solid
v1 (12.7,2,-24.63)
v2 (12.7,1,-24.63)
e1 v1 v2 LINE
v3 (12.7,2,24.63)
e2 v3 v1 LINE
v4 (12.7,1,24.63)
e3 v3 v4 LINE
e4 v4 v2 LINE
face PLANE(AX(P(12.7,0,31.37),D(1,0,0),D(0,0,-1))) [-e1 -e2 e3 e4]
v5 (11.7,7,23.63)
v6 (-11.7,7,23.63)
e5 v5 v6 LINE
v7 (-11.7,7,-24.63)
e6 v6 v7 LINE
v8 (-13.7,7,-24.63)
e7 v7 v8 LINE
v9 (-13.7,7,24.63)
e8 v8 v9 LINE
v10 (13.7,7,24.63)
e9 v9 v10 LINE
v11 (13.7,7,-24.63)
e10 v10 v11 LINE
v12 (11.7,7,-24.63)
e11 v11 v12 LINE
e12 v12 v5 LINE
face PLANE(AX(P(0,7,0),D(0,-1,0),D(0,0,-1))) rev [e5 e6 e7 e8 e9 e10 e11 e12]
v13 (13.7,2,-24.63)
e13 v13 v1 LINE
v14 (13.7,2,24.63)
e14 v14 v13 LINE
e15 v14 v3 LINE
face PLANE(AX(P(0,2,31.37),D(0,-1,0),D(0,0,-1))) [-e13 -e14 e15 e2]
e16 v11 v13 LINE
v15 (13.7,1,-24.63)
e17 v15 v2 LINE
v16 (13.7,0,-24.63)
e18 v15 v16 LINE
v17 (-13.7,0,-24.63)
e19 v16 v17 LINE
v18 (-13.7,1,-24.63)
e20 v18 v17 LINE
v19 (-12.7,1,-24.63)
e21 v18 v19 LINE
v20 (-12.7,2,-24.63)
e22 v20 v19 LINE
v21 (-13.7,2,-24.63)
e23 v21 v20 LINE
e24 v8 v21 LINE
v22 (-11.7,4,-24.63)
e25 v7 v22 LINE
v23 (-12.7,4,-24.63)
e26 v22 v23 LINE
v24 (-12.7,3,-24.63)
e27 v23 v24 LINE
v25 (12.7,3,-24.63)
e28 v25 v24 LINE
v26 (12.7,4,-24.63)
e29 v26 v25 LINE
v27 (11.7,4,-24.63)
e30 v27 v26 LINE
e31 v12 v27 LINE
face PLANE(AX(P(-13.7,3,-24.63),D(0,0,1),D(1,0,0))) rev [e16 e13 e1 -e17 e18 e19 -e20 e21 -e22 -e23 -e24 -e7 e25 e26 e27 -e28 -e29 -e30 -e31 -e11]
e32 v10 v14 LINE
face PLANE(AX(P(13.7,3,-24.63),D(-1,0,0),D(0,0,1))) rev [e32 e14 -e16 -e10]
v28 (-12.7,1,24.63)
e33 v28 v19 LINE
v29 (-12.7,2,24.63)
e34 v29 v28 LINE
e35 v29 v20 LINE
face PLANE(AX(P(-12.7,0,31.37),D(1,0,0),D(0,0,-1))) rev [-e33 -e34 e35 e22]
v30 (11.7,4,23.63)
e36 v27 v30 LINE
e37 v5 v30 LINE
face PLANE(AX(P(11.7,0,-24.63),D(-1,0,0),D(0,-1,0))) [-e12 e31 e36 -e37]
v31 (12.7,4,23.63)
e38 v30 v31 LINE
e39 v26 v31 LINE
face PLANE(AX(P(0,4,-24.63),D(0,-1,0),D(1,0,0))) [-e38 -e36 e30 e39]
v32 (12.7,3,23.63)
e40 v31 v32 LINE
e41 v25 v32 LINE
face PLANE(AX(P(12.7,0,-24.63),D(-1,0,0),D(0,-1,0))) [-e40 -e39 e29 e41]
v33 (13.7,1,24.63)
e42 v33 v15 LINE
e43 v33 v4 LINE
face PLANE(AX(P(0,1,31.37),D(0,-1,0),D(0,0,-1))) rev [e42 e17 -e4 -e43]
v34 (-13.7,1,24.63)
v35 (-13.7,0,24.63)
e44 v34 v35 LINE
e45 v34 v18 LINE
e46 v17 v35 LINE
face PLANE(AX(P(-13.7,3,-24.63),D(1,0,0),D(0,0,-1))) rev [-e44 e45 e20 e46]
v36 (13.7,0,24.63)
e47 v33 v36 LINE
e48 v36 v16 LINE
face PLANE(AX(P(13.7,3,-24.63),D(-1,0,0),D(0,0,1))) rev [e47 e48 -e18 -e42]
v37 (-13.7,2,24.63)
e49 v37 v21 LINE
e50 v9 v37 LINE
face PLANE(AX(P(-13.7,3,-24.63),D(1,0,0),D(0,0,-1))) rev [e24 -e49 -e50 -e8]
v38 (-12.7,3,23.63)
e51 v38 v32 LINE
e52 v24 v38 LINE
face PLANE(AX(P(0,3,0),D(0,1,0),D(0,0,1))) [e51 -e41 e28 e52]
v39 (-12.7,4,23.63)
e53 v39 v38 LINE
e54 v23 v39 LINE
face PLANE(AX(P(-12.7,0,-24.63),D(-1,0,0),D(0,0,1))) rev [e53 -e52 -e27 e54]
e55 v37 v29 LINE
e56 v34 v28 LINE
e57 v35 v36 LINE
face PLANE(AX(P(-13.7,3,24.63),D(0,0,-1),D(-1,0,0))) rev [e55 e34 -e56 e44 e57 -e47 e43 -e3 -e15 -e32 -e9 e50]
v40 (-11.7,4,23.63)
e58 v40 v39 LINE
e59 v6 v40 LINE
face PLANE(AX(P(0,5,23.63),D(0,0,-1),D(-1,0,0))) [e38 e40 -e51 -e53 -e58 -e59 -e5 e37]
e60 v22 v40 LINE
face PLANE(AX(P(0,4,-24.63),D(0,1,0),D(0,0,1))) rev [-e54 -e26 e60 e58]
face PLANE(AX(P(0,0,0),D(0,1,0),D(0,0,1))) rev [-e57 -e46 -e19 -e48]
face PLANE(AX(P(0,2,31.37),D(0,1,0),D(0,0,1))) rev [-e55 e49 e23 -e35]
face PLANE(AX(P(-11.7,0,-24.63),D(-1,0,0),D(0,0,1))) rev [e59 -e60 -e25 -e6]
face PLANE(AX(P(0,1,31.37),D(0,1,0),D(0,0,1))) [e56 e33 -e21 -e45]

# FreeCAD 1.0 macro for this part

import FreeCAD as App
import Part
import Sketcher
from FreeCAD import Vector


def add_polygon(sketch, points):
    """Adds a closed chain of lines whose ends are joined by coincident constraints."""
    first, n = sketch.GeometryCount, len(points)
    for a, b in zip(points, points[1:] + points[:1]):
        sketch.addGeometry(Part.LineSegment(App.Vector(*a, 0), App.Vector(*b, 0)), False)
    for i in range(n):
        sketch.addConstraint(Sketcher.Constraint("Coincident", first + i, 2, first + (i + 1) % n, 1))

doc = App.newDocument("Part")
body = doc.addObject("PartDesign::Body", "Body")

# Sketch on XZ plane
sketch1 = doc.addObject("Sketcher::SketchObject", "Sketch")
body.addObject(sketch1)
sketch1.AttachmentSupport = (doc.XZ_Plane, [""])
sketch1.MapMode = "FlatFace"
add_polygon(sketch1, [(-13.7, -24.63), (-13.7, 24.63), (13.7, 24.63), (13.7, -24.63)])  # lines 0-3
sketch1.addConstraint(Sketcher.Constraint("Vertical", 0))
sketch1.addConstraint(Sketcher.Constraint("Horizontal", 1))
sketch1.addConstraint(Sketcher.Constraint("Vertical", 2))
sketch1.addConstraint(Sketcher.Constraint("Horizontal", 3))
sketch1.addConstraint(Sketcher.Constraint("Symmetric", 0, 2, 2, 2, -1, 1))
sketch1.addConstraint(Sketcher.Constraint("DistanceX", 1, 1, 1, 2, 27.4))
sketch1.addConstraint(Sketcher.Constraint("DistanceY", 0, 1, 0, 2, 49.26))
pad1 = doc.addObject("PartDesign::Pad", "Pad")
body.addObject(pad1)
pad1.Profile = sketch1
pad1.Length = 3
pad1.Reversed = True

# Sketch on XY plane
sketch2 = doc.addObject("Sketcher::SketchObject", "Sketch001")
body.addObject(sketch2)
sketch2.AttachmentSupport = (doc.XY_Plane, [""])
sketch2.MapMode = "FlatFace"
sketch2.AttachmentOffset = App.Placement(Vector(0, 0, -24.63), App.Rotation())
add_polygon(sketch2, [(12.7, 2), (13.7, 2), (13.7, 1), (12.7, 1)])  # lines 0-3
add_polygon(sketch2, [(-13.7, 2), (-12.7, 2), (-12.7, 1), (-13.7, 1)])  # lines 4-7
sketch2.addConstraint(Sketcher.Constraint("Horizontal", 0))
sketch2.addConstraint(Sketcher.Constraint("Vertical", 1))
sketch2.addConstraint(Sketcher.Constraint("Horizontal", 2))
sketch2.addConstraint(Sketcher.Constraint("Vertical", 3))
sketch2.addConstraint(Sketcher.Constraint("Horizontal", 4))
sketch2.addConstraint(Sketcher.Constraint("Vertical", 5))
sketch2.addConstraint(Sketcher.Constraint("Horizontal", 6))
sketch2.addConstraint(Sketcher.Constraint("Vertical", 7))
sketch2.addConstraint(Sketcher.Constraint("Symmetric", 3, 2, 4, 2, -2))
sketch2.addConstraint(Sketcher.Constraint("Symmetric", 1, 2, 6, 2, -2))
sketch2.addConstraint(Sketcher.Constraint("Equal", 6, 1))
sketch2.addConstraint(Sketcher.Constraint("DistanceX", 0, 1, 0, 2, 1.0))
sketch2.addConstraint(Sketcher.Constraint("DistanceY", -1, 1, 0, 2, 2.0))
sketch2.addConstraint(Sketcher.Constraint("DistanceX", -1, 1, 0, 2, 13.7))
pocket1 = doc.addObject("PartDesign::Pocket", "Pocket")
body.addObject(pocket1)
pocket1.Profile = sketch2
pocket1.Length = 56
pocket1.Reversed = True

# Sketch on XY plane
sketch3 = doc.addObject("Sketcher::SketchObject", "Sketch002")
body.addObject(sketch3)
sketch3.AttachmentSupport = (doc.XY_Plane, [""])
sketch3.MapMode = "FlatFace"
sketch3.AttachmentOffset = App.Placement(Vector(0, 0, 24.63), App.Rotation())
add_polygon(sketch3, [(-13.7, 5), (-13.7, 3), (-12.7, 3), (-12.7, 4), (-11.7, 4), (-11.7, 5)])  # lines 0-5
add_polygon(sketch3, [(12.7, 4), (12.7, 3), (13.7, 3), (13.7, 5), (11.7, 5), (11.7, 4)])  # lines 6-11
sketch3.addConstraint(Sketcher.Constraint("Vertical", 0))
sketch3.addConstraint(Sketcher.Constraint("Horizontal", 1))
sketch3.addConstraint(Sketcher.Constraint("Vertical", 2))
sketch3.addConstraint(Sketcher.Constraint("Horizontal", 3))
sketch3.addConstraint(Sketcher.Constraint("Vertical", 4))
sketch3.addConstraint(Sketcher.Constraint("Horizontal", 5))
sketch3.addConstraint(Sketcher.Constraint("Vertical", 6))
sketch3.addConstraint(Sketcher.Constraint("Horizontal", 7))
sketch3.addConstraint(Sketcher.Constraint("Vertical", 8))
sketch3.addConstraint(Sketcher.Constraint("Horizontal", 9))
sketch3.addConstraint(Sketcher.Constraint("Vertical", 10))
sketch3.addConstraint(Sketcher.Constraint("Horizontal", 11))
sketch3.addConstraint(Sketcher.Constraint("Symmetric", 1, 2, 6, 2, -2))
sketch3.addConstraint(Sketcher.Constraint("Symmetric", 5, 2, 8, 2, -2))
sketch3.addConstraint(Sketcher.Constraint("Symmetric", 3, 2, 10, 2, -2))
sketch3.addConstraint(Sketcher.Constraint("Equal", 1, 3))
sketch3.addConstraint(Sketcher.Constraint("Equal", 9, 0))
sketch3.addConstraint(Sketcher.Constraint("Equal", 11, 2))
sketch3.addConstraint(Sketcher.Constraint("DistanceX", 1, 1, 1, 2, 1.0))
sketch3.addConstraint(Sketcher.Constraint("DistanceY", -1, 1, 0, 2, 3.0))
sketch3.addConstraint(Sketcher.Constraint("DistanceX", 0, 2, -1, 1, 13.7))
pad2 = doc.addObject("PartDesign::Pad", "Pad001")
body.addObject(pad2)
pad2.Profile = sketch3
pad2.Length = 49.26
pad2.Reversed = True

# Sketch on XZ plane
sketch4 = doc.addObject("Sketcher::SketchObject", "Sketch003")
body.addObject(sketch4)
sketch4.AttachmentSupport = (doc.XZ_Plane, [""])
sketch4.MapMode = "FlatFace"
sketch4.AttachmentOffset = App.Placement(Vector(0, 0, -3), App.Rotation())
add_polygon(sketch4, [(-12.7, 23.63), (-12.7, 24.63), (12.7, 24.63), (12.7, 23.63)])  # lines 0-3
sketch4.addConstraint(Sketcher.Constraint("Vertical", 0))
sketch4.addConstraint(Sketcher.Constraint("Horizontal", 1))
sketch4.addConstraint(Sketcher.Constraint("Vertical", 2))
sketch4.addConstraint(Sketcher.Constraint("Horizontal", 3))
sketch4.addConstraint(Sketcher.Constraint("DistanceY", 0, 1, 0, 2, 1.0))
sketch4.addConstraint(Sketcher.Constraint("DistanceX", 1, 1, 1, 2, 25.4))
sketch4.addConstraint(Sketcher.Constraint("DistanceX", 0, 2, -1, 1, 12.7))
sketch4.addConstraint(Sketcher.Constraint("DistanceY", -1, 1, 0, 2, 24.63))
pad3 = doc.addObject("PartDesign::Pad", "Pad002")
body.addObject(pad3)
pad3.Profile = sketch4
pad3.Length = 2
pad3.Reversed = True

# Sketch on XZ plane
sketch5 = doc.addObject("Sketcher::SketchObject", "Sketch004")
body.addObject(sketch5)
sketch5.AttachmentSupport = (doc.XZ_Plane, [""])
sketch5.MapMode = "FlatFace"
sketch5.AttachmentOffset = App.Placement(Vector(0, 0, -5), App.Rotation())
add_polygon(sketch5, [(-11.7, -24.63), (-13.7, -24.63), (-13.7, 24.63), (13.7, 24.63), (13.7, -24.63), (11.7, -24.63), (11.7, 23.63), (-11.7, 23.63)])  # lines 0-7
sketch5.addConstraint(Sketcher.Constraint("Horizontal", 0))
sketch5.addConstraint(Sketcher.Constraint("Vertical", 1))
sketch5.addConstraint(Sketcher.Constraint("Horizontal", 2))
sketch5.addConstraint(Sketcher.Constraint("Vertical", 3))
sketch5.addConstraint(Sketcher.Constraint("Horizontal", 4))
sketch5.addConstraint(Sketcher.Constraint("Vertical", 5))
sketch5.addConstraint(Sketcher.Constraint("Horizontal", 6))
sketch5.addConstraint(Sketcher.Constraint("Vertical", 7))
sketch5.addConstraint(Sketcher.Constraint("Symmetric", 0, 2, 2, 2, -1, 1))
sketch5.addConstraint(Sketcher.Constraint("Symmetric", 4, 2, 7, 2, -2))
sketch5.addConstraint(Sketcher.Constraint("DistanceX", 0, 2, 0, 1, 2.0))
sketch5.addConstraint(Sketcher.Constraint("DistanceX", 2, 1, 2, 2, 27.4))
sketch5.addConstraint(Sketcher.Constraint("DistanceY", 5, 2, 2, 2, 1.0))
sketch5.addConstraint(Sketcher.Constraint("DistanceY", 1, 1, 1, 2, 49.26))
pad4 = doc.addObject("PartDesign::Pad", "Pad003")
body.addObject(pad4)
pad4.Profile = sketch5
pad4.Length = 2
pad4.Reversed = True

doc.recompute()
